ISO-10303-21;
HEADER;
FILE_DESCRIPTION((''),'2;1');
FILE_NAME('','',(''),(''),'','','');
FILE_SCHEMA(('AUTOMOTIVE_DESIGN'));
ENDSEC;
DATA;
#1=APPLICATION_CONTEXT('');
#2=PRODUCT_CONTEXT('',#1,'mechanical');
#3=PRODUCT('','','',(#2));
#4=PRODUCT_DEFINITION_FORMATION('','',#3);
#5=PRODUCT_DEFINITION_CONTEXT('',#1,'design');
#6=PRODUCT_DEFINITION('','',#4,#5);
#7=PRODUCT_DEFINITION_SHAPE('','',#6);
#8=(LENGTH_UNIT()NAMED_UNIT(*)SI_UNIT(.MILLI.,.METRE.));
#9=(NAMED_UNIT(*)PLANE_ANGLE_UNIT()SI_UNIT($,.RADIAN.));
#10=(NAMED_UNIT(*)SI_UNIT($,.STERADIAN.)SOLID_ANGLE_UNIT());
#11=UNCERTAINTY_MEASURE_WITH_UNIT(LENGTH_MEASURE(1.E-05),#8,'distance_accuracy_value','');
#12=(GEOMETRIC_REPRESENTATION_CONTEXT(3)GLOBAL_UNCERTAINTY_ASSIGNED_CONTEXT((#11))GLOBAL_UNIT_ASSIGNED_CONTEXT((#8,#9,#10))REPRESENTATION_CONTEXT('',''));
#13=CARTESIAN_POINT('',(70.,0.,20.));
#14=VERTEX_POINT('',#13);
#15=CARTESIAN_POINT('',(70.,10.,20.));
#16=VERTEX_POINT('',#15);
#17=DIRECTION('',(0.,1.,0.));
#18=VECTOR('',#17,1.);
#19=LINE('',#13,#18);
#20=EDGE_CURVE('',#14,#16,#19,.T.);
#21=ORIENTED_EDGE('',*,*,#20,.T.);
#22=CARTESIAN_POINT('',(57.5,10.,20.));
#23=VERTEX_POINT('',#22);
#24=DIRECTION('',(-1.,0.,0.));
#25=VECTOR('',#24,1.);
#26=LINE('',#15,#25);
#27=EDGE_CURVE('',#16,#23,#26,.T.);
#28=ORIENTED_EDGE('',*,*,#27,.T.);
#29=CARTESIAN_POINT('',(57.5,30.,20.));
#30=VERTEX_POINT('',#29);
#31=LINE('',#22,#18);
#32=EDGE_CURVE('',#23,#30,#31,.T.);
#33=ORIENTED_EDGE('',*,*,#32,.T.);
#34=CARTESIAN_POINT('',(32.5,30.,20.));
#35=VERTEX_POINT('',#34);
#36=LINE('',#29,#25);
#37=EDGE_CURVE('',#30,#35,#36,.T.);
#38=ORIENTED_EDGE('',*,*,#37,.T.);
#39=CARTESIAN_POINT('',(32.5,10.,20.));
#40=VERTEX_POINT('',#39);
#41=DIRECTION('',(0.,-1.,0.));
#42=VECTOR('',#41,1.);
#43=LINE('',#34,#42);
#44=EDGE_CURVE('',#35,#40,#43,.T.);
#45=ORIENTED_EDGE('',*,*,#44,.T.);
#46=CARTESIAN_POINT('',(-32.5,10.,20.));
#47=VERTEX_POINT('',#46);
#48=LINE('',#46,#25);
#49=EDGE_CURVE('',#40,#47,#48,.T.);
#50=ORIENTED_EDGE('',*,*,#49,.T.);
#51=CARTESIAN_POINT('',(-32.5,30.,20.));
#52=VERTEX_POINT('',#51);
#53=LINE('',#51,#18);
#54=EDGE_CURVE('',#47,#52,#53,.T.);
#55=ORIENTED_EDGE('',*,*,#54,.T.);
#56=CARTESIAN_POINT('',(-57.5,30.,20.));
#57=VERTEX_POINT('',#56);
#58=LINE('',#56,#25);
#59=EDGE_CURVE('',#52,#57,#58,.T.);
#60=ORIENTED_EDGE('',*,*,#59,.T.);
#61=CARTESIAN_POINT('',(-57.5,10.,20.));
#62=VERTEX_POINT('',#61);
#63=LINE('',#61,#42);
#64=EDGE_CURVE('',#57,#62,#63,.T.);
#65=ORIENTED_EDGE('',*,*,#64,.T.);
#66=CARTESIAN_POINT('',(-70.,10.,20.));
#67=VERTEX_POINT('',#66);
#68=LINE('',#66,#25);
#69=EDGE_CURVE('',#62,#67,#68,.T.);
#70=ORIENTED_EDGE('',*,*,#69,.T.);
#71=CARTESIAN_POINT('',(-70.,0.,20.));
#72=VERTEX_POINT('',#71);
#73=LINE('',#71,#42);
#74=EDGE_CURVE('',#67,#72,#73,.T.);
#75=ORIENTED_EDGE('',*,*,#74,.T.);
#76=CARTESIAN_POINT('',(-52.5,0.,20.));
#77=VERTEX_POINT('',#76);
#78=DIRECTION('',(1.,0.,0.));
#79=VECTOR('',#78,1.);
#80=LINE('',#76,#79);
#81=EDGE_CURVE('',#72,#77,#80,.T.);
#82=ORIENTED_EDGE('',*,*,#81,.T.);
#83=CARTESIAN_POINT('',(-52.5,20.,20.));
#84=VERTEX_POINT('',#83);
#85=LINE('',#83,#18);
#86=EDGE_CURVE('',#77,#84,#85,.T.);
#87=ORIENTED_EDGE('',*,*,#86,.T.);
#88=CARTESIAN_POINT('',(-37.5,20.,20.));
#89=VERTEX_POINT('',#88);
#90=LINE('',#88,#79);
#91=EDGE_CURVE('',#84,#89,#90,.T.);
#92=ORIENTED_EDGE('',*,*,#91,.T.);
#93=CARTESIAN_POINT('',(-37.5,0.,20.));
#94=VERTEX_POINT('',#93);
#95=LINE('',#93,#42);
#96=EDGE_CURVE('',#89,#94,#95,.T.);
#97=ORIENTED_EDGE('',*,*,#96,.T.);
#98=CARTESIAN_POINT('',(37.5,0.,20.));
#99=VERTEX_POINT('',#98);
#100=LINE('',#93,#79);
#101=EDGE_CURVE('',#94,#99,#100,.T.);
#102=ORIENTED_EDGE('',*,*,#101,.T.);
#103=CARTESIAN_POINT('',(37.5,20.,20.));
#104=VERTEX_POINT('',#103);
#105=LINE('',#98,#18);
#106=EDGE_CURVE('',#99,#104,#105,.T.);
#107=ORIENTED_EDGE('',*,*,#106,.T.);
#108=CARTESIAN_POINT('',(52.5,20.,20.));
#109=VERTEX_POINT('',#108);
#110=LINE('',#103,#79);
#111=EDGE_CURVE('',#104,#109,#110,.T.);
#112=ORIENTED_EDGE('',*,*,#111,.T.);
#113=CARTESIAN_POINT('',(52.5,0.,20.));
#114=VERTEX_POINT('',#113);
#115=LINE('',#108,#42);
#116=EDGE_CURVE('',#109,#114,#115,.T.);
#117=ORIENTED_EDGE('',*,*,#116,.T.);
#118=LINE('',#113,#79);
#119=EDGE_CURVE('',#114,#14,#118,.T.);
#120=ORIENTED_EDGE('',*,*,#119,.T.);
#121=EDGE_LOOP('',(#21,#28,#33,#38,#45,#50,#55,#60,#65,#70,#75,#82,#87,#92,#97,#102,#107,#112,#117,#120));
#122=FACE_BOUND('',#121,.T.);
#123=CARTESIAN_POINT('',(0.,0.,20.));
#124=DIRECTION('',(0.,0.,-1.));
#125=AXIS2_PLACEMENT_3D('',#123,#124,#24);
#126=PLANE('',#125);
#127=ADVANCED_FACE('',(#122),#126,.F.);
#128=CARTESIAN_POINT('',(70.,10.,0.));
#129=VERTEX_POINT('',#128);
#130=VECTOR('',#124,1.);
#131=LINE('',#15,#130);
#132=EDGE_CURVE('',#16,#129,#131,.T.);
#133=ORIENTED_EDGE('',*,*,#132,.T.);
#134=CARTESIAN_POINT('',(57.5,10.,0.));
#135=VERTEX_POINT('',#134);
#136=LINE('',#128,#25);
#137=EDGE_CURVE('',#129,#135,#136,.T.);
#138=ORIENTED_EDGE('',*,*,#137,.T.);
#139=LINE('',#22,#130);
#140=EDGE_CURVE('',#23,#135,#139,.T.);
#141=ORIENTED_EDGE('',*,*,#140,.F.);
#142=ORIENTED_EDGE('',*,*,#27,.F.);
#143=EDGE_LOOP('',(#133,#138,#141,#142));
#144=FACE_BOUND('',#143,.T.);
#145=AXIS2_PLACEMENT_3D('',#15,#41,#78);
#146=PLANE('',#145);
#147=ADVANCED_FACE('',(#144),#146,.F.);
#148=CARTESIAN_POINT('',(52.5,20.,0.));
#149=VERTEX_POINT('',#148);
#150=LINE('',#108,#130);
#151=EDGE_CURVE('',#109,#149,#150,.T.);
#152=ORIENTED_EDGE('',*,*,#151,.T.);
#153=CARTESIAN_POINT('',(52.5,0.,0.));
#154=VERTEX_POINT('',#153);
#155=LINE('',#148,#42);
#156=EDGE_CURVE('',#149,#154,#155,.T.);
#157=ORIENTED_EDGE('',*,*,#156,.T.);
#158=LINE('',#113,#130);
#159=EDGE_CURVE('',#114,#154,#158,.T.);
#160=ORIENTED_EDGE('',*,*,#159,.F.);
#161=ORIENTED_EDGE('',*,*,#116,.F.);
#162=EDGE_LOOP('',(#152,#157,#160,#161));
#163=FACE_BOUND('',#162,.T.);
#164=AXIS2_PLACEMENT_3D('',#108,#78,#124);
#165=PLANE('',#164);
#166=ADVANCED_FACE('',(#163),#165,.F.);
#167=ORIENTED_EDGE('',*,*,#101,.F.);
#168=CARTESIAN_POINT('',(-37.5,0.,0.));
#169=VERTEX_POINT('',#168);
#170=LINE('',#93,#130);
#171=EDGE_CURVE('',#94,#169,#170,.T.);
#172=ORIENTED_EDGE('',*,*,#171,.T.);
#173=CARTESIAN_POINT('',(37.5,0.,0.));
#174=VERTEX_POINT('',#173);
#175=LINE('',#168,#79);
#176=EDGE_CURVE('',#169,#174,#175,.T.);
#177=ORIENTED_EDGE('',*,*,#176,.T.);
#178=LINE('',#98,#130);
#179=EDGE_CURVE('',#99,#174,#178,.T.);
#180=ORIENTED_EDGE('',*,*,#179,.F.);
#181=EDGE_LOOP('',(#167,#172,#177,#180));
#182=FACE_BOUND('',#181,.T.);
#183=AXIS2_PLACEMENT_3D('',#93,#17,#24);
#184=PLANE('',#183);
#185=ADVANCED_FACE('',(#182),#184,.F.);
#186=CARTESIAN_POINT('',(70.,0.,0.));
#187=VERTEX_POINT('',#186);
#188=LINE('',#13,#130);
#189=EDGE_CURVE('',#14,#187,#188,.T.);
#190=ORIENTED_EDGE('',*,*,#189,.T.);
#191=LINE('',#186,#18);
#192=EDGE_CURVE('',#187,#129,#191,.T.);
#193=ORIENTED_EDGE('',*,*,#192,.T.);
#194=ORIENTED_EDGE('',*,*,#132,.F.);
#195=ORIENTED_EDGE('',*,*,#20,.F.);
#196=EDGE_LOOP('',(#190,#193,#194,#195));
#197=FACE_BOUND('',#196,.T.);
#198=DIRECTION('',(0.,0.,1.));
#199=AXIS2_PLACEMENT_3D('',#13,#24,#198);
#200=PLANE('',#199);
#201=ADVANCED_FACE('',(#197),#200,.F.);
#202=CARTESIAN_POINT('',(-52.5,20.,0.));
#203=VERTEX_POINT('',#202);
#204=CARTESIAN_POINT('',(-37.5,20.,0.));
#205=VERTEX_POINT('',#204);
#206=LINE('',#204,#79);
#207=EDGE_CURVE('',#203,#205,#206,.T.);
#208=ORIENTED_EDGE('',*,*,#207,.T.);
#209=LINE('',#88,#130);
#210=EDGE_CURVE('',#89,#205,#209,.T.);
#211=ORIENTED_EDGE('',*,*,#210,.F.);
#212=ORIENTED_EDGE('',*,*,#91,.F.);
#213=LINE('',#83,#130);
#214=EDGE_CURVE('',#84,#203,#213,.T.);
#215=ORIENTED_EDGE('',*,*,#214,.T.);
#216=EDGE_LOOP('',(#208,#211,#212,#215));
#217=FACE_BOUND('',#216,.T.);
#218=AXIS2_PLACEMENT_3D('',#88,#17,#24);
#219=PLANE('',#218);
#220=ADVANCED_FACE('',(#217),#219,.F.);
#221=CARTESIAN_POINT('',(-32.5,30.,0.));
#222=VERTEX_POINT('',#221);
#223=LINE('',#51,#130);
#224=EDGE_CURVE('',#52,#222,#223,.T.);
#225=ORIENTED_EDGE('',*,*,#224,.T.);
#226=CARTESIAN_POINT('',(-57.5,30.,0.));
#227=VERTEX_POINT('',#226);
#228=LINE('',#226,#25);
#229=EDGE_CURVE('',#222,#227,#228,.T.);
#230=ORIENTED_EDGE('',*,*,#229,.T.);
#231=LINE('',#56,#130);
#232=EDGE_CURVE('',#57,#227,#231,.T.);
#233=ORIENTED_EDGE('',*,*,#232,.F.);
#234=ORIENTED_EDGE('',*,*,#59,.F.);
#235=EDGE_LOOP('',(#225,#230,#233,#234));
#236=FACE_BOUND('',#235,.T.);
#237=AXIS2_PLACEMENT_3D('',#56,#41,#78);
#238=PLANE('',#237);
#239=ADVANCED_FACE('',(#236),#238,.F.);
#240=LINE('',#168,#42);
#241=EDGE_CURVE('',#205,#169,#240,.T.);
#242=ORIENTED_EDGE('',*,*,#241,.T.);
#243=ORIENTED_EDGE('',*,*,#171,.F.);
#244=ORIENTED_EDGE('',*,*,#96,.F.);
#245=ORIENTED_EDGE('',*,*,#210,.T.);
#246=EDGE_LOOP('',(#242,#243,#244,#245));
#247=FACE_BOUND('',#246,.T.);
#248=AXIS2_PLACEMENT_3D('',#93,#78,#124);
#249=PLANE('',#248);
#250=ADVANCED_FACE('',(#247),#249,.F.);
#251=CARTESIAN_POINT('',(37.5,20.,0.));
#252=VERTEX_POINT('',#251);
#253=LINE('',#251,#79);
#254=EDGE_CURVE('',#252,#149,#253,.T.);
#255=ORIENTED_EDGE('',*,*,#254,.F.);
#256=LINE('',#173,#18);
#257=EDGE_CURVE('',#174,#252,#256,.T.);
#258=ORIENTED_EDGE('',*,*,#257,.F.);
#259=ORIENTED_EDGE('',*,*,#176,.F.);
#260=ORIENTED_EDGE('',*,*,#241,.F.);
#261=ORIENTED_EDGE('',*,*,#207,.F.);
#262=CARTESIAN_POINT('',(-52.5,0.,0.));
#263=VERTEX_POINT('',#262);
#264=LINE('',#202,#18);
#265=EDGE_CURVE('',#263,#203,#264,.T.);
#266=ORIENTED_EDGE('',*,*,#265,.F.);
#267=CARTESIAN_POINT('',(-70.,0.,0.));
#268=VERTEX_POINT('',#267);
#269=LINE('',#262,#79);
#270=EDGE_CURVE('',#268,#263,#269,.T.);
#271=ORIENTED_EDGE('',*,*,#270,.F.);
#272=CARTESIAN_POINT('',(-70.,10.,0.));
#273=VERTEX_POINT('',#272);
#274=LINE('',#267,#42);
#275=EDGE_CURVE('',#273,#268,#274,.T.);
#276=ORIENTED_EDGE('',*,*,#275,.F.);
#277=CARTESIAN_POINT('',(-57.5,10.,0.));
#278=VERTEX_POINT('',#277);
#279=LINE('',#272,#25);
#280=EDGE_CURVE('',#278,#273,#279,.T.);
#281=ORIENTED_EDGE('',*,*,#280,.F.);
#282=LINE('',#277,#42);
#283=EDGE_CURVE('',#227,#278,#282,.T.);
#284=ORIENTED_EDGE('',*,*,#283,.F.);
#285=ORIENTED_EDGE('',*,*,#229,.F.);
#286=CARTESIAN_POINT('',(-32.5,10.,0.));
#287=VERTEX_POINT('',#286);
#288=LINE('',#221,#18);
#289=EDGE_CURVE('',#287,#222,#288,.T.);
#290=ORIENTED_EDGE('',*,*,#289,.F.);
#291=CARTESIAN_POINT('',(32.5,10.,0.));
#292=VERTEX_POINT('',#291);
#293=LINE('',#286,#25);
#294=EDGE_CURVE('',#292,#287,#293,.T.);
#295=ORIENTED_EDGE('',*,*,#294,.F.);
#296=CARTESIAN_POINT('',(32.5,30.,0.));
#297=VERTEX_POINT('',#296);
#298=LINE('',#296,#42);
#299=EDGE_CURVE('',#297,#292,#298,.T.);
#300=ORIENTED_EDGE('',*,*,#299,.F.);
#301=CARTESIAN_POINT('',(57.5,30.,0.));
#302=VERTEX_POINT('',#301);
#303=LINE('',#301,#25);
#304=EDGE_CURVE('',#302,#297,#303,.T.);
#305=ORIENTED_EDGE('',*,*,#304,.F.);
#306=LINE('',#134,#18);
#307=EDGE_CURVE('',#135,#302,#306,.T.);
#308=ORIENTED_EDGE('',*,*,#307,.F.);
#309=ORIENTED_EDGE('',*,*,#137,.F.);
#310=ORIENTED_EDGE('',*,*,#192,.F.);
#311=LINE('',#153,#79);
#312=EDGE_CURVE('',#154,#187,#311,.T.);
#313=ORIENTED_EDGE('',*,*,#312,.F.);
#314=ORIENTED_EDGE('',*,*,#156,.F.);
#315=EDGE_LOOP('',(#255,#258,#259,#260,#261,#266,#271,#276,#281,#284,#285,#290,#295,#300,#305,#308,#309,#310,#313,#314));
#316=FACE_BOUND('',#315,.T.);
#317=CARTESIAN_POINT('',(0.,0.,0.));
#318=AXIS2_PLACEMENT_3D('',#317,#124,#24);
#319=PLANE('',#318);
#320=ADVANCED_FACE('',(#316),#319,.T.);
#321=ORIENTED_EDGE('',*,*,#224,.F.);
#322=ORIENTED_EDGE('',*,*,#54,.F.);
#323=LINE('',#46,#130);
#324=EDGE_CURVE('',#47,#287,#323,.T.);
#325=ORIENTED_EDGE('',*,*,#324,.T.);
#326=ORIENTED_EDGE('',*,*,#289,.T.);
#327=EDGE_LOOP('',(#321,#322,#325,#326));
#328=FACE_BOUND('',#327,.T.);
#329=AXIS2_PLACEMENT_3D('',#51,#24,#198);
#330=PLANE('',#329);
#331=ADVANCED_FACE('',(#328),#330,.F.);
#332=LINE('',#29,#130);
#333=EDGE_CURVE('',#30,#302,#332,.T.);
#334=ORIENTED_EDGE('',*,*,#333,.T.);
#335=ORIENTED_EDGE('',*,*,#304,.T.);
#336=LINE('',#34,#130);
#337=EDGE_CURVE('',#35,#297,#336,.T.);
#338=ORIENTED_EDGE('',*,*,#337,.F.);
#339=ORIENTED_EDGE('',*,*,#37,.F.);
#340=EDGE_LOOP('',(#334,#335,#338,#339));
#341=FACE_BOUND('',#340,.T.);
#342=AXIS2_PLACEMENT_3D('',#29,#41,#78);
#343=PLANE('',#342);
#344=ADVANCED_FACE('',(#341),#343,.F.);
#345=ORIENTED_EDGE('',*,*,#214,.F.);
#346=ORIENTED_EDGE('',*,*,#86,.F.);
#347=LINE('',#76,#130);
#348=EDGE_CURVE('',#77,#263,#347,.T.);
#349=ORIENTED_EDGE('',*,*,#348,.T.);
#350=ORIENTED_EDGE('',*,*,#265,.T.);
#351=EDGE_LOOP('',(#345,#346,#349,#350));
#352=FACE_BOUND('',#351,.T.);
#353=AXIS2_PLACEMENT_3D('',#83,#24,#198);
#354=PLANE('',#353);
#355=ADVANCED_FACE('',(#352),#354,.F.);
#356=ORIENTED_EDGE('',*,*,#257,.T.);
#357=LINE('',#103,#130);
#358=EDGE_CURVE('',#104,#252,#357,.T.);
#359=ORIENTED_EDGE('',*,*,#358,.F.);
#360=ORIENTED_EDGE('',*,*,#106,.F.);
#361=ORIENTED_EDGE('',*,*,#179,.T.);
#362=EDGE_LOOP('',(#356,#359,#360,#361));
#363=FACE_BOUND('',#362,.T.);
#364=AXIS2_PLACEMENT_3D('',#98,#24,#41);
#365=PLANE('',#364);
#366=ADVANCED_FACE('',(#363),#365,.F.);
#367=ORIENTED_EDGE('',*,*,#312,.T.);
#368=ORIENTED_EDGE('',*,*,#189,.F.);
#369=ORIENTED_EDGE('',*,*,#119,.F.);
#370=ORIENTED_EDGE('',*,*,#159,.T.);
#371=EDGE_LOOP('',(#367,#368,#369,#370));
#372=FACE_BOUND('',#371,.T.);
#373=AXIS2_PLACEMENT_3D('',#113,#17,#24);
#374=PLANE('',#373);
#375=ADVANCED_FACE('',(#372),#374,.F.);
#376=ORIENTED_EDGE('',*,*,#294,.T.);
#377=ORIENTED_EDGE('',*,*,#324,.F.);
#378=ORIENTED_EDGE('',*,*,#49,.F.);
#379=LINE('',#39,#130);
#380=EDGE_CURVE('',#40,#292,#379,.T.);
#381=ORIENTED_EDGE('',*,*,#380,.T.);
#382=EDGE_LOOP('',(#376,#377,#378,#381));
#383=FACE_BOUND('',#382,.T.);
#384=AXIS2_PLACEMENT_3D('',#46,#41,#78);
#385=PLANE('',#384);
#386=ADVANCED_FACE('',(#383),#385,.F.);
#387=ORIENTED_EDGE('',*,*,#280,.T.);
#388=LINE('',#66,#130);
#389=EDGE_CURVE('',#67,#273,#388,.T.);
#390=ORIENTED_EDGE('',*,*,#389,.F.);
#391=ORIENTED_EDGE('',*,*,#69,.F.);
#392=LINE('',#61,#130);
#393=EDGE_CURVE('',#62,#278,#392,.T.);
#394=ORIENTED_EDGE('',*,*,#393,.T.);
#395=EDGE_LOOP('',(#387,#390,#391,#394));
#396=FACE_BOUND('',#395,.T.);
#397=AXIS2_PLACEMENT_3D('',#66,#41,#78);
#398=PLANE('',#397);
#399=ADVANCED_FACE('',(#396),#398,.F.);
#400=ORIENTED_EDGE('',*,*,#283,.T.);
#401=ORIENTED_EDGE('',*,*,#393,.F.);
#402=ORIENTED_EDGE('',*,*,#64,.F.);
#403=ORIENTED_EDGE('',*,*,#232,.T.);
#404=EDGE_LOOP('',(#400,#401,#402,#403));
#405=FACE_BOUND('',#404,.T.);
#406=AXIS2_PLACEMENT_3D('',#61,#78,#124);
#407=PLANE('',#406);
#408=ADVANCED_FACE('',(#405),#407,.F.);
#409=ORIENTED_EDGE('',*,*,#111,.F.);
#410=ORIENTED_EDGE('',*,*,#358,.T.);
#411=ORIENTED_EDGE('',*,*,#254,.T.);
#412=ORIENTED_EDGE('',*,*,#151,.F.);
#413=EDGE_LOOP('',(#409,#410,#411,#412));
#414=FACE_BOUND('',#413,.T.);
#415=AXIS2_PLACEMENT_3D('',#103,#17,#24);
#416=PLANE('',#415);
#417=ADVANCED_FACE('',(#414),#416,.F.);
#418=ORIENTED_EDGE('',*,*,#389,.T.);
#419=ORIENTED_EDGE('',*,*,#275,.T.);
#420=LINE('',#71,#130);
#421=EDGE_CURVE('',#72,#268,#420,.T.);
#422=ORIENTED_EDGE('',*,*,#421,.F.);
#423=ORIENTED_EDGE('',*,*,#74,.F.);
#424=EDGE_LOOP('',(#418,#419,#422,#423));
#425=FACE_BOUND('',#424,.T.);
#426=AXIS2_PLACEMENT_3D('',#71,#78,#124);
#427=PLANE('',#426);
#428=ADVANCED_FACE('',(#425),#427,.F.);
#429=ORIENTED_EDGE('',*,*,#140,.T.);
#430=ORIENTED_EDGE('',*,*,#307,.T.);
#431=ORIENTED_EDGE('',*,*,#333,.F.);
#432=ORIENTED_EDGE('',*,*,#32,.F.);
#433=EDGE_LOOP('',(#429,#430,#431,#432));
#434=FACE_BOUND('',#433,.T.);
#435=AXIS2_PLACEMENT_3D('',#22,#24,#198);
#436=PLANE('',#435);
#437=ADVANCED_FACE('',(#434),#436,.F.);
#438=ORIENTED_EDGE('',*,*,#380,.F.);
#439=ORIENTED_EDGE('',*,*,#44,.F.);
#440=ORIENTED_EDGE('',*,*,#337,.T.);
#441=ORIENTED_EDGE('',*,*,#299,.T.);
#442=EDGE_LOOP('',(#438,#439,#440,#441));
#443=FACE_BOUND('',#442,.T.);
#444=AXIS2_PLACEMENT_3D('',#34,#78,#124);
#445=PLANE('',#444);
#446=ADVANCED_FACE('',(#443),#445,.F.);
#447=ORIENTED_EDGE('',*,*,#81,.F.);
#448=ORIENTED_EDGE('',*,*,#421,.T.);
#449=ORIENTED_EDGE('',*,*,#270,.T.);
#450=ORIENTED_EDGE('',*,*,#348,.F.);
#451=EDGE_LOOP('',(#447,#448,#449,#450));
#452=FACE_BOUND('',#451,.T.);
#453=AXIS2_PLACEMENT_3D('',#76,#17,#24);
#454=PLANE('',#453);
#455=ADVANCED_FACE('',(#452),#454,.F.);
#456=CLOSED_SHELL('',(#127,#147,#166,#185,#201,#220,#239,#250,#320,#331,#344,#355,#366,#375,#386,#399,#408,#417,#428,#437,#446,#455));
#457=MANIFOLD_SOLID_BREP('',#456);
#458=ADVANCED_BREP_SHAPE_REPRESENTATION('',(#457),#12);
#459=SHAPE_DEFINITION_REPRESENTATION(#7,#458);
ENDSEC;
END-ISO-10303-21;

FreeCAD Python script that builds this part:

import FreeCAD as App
import Part
import Sketcher


def add_polygon(sketch, points):
    """Adds a closed chain of lines whose ends are joined by coincident constraints."""
    first, n = sketch.GeometryCount, len(points)
    for a, b in zip(points, points[1:] + points[:1]):
        sketch.addGeometry(Part.LineSegment(App.Vector(*a, 0), App.Vector(*b, 0)), False)
    for i in range(n):
        sketch.addConstraint(Sketcher.Constraint("Coincident", first + i, 2, first + (i + 1) % n, 1))

doc = App.newDocument("Part")
body = doc.addObject("PartDesign::Body", "Body")

sketch1 = body.newObject("Sketcher::SketchObject", "Sketch")
sketch1.AttachmentSupport = (doc.getObject("XY_Plane"), [""])
sketch1.MapMode = "FlatFace"
add_polygon(sketch1, [(-38, 0), (38, 0), (38, 20), (52, 20), (52, 0), (70, 0), (70, 10), (58, 10), (58, 30), (32, 30), (32, 10), (-32, 10), (-32, 30), (-58, 30), (-58, 10), (-70, 10), (-70, 0), (-52, 0), (-52, 20), (-38, 20)])
sketch1.addConstraint(Sketcher.Constraint("Horizontal", 0))
sketch1.addConstraint(Sketcher.Constraint("Vertical", 1))
sketch1.addConstraint(Sketcher.Constraint("Horizontal", 2))
sketch1.addConstraint(Sketcher.Constraint("Vertical", 3))
sketch1.addConstraint(Sketcher.Constraint("Horizontal", 4))
sketch1.addConstraint(Sketcher.Constraint("Vertical", 5))
sketch1.addConstraint(Sketcher.Constraint("Horizontal", 6))
sketch1.addConstraint(Sketcher.Constraint("Vertical", 7))
sketch1.addConstraint(Sketcher.Constraint("Horizontal", 8))
sketch1.addConstraint(Sketcher.Constraint("Vertical", 9))
sketch1.addConstraint(Sketcher.Constraint("Horizontal", 10))
sketch1.addConstraint(Sketcher.Constraint("Vertical", 11))
sketch1.addConstraint(Sketcher.Constraint("Horizontal", 12))
sketch1.addConstraint(Sketcher.Constraint("Vertical", 13))
sketch1.addConstraint(Sketcher.Constraint("Horizontal", 14))
sketch1.addConstraint(Sketcher.Constraint("Vertical", 15))
sketch1.addConstraint(Sketcher.Constraint("Horizontal", 16))
sketch1.addConstraint(Sketcher.Constraint("Vertical", 17))
sketch1.addConstraint(Sketcher.Constraint("Horizontal", 18))
sketch1.addConstraint(Sketcher.Constraint("Vertical", 19))
sketch1.addConstraint(Sketcher.Constraint("Symmetric", 4, 2, 15, 2, -1, 1))
sketch1.addConstraint(Sketcher.Constraint("Symmetric", 0, 2, 19, 2, -1, 1))
sketch1.addConstraint(Sketcher.Constraint("Symmetric", 8, 2, 11, 2, -2))
sketch1.addConstraint(Sketcher.Constraint("Symmetric", 6, 2, 13, 2, -2))
sketch1.addConstraint(Sketcher.Constraint("Symmetric", 3, 2, 16, 2, -2))
sketch1.addConstraint(Sketcher.Constraint("Horizontal", 6, 2, 9, 2))
sketch1.addConstraint(Sketcher.Constraint("Horizontal", 2, 2, 17, 2))
sketch1.addConstraint(Sketcher.Constraint("Equal", 3, 7))
sketch1.addConstraint(Sketcher.Constraint("DistanceX", 0, 1, 0, 2, 75.0))
sketch1.addConstraint(Sketcher.Constraint("DistanceX", 2, 1, 2, 2, 15.0))
sketch1.addConstraint(Sketcher.Constraint("DistanceX", 8, 2, 8, 1, 25.0))
sketch1.addConstraint(Sketcher.Constraint("DistanceX", 10, 2, 10, 1, 65.0))
sketch1.addConstraint(Sketcher.Constraint("DistanceY", 1, 1, 1, 2, 20.0))
sketch1.addConstraint(Sketcher.Constraint("DistanceY", 5, 1, 5, 2, 10.0))
sketch1.addConstraint(Sketcher.Constraint("DistanceX", 4, 1, 4, 2, 17.5))
pad1 = body.newObject("PartDesign::Pad", "Pad")
pad1.Profile = sketch1
pad1.Length = 20

doc.recompute()
